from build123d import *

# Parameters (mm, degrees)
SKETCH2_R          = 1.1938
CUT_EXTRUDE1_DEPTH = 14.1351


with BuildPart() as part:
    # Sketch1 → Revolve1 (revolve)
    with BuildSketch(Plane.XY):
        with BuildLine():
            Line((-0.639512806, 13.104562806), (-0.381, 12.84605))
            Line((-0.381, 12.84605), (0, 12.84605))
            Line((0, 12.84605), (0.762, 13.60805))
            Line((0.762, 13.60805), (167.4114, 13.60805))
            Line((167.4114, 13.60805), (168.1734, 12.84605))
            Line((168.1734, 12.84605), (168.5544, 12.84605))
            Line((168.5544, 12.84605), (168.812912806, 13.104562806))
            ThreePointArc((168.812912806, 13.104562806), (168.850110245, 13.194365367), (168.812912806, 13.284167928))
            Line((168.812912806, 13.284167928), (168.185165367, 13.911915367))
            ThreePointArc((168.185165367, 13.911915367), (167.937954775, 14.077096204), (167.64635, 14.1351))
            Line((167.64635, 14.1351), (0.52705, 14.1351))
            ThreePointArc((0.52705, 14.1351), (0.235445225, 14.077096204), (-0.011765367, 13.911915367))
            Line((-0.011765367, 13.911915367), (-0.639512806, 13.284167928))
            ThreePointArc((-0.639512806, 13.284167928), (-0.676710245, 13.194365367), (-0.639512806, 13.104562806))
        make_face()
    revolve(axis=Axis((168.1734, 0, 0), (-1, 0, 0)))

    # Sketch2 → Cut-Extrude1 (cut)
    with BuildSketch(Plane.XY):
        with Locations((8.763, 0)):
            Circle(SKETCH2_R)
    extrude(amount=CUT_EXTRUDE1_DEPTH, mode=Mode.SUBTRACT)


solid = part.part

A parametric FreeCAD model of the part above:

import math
import FreeCAD as App
import Part
import Sketcher

V = App.Vector
Q = App.Units.Quantity

doc = App.newDocument("Part")
body = doc.addObject("PartDesign::Body", "Body")

# Sketch on XY plane
sketch1 = body.newObject("Sketcher::SketchObject", "Sketch")
sketch1.AttachmentSupport = (doc.getObject("XY_Plane"), [""])
sketch1.MapMode = "FlatFace"
sketch1.addGeometry([
    Part.LineSegment(V(-0.639513, 13.104563, 0), V(-0.381, 12.84605, 0)),  # 0
    Part.LineSegment(V(-0.381, 12.84605, 0), V(0, 12.84605, 0)),  # 1
    Part.LineSegment(V(0, 12.84605, 0), V(0.762, 13.60805, 0)),  # 2
    Part.LineSegment(V(0.762, 13.60805, 0), V(167.4114, 13.60805, 0)),  # 3
    Part.LineSegment(V(167.4114, 13.60805, 0), V(168.1734, 12.84605, 0)),  # 4
    Part.LineSegment(V(168.1734, 12.84605, 0), V(168.5544, 12.84605, 0)),  # 5
    Part.LineSegment(V(168.5544, 12.84605, 0), V(168.812913, 13.104563, 0)),  # 6
    Part.ArcOfCircle(Part.Circle(V(168.72311, 13.194365, 0), V(0, 0, 1), 0.127), math.radians(-45), math.radians(45)),  # 7
    Part.LineSegment(V(168.812913, 13.284168, 0), V(168.185165, 13.911915, 0)),  # 8
    Part.ArcOfCircle(Part.Circle(V(167.64635, 13.3731, 0), V(0, 0, 1), 0.762), math.radians(45), math.radians(90)),  # 9
    Part.LineSegment(V(167.64635, 14.1351, 0), V(0.52705, 14.1351, 0)),  # 10
    Part.ArcOfCircle(Part.Circle(V(0.52705, 13.3731, 0), V(0, 0, 1), 0.762), math.radians(90), math.radians(135)),  # 11
    Part.LineSegment(V(-0.011765, 13.911915, 0), V(-0.639513, 13.284168, 0)),  # 12
    Part.ArcOfCircle(Part.Circle(V(-0.54971, 13.194365, 0), V(0, 0, 1), 0.127), math.radians(135), math.radians(225)),  # 13
], False)
sketch1.addConstraint([
    Sketcher.Constraint("Coincident", 0, 2, 1, 1),
    Sketcher.Constraint("Coincident", 1, 2, 2, 1),
    Sketcher.Constraint("Coincident", 2, 2, 3, 1),
    Sketcher.Constraint("Coincident", 3, 2, 4, 1),
    Sketcher.Constraint("Coincident", 4, 2, 5, 1),
    Sketcher.Constraint("Coincident", 5, 2, 6, 1),
    Sketcher.Constraint("Tangent", 6, 2, 7, 1),
    Sketcher.Constraint("Tangent", 7, 2, 8, 1),
    Sketcher.Constraint("Tangent", 8, 2, 9, 1),
    Sketcher.Constraint("Tangent", 9, 2, 10, 1),
    Sketcher.Constraint("Tangent", 10, 2, 11, 1),
    Sketcher.Constraint("Tangent", 11, 2, 12, 1),
    Sketcher.Constraint("Tangent", 12, 2, 13, 1),
    Sketcher.Constraint("Tangent", 13, 2, 0, 1),
    Sketcher.Constraint("Horizontal", 1),
    Sketcher.Constraint("Horizontal", 3),
    Sketcher.Constraint("Horizontal", 5),
    Sketcher.Constraint("Horizontal", 10),
    Sketcher.Constraint("Equal", 9, 11),
    Sketcher.Constraint("Equal", 7, 13),
    Sketcher.Constraint("PointOnObject", 1, 2, -2),
    Sketcher.Constraint("Perpendicular", 0, 2),
    Sketcher.Constraint("Perpendicular", 2, 4),
    Sketcher.Constraint("Perpendicular", 4, 6),
    Sketcher.Constraint("Perpendicular", 6, 8),
    Sketcher.Constraint("Perpendicular", 8, 12),
    Sketcher.Constraint("Horizontal", 7, 3, 13, 3),
    Sketcher.Constraint("Horizontal", 1, 2, 4, 2),
    Sketcher.Constraint("Horizontal", 8, 2, 11, 2),
    Sketcher.Constraint("Equal", 1, 5),
    Sketcher.Constraint("Radius", 9, Q("0.03 in")),
    Sketcher.Constraint("Radius", 7, Q("0.005 in")),
    Sketcher.Constraint("DistanceX", 1, 1, 1, 2, Q("0.015 in")),
    Sketcher.Constraint("DistanceX", 3, 1, 3, 2, Q("6.561 in")),
    Sketcher.Constraint("DistanceX", -1, 1, 2, 2, Q("0.03 in")),
    Sketcher.Constraint("DistanceX", 10, 2, 10, 1, Q("6.5795 in")),
    Sketcher.Constraint("DistanceY", -1, 1, 9, 3, Q("0.5265 in")),
    Sketcher.Constraint("Distance", 8, 0.887769),
])
revolution = body.newObject("PartDesign::Revolution", "Revolution")
revolution.Profile = sketch1
revolution.ReferenceAxis = (sketch1, ["H_Axis"])
revolution.Angle = 360

# Sketch on XY plane
sketch2 = body.newObject("Sketcher::SketchObject", "Sketch001")
sketch2.AttachmentSupport = (doc.getObject("XY_Plane"), [""])
sketch2.MapMode = "FlatFace"
sketch2.addGeometry(Part.Circle(V(8.763, 0, 0), V(0, 0, 1), 1.1938), False)
sketch2.addConstraint([
    Sketcher.Constraint("PointOnObject", 0, 3, -1),
    Sketcher.Constraint("Diameter", 0, Q("0.094 in")),
    Sketcher.Constraint("DistanceX", -1, 1, 0, 3, Q("0.345 in")),
])
pocket1 = body.newObject("PartDesign::Pocket", "Pocket")
pocket1.Profile = sketch2
pocket1.Length = Q("0.5565 in")
pocket1.Reversed = True

doc.recompute()
